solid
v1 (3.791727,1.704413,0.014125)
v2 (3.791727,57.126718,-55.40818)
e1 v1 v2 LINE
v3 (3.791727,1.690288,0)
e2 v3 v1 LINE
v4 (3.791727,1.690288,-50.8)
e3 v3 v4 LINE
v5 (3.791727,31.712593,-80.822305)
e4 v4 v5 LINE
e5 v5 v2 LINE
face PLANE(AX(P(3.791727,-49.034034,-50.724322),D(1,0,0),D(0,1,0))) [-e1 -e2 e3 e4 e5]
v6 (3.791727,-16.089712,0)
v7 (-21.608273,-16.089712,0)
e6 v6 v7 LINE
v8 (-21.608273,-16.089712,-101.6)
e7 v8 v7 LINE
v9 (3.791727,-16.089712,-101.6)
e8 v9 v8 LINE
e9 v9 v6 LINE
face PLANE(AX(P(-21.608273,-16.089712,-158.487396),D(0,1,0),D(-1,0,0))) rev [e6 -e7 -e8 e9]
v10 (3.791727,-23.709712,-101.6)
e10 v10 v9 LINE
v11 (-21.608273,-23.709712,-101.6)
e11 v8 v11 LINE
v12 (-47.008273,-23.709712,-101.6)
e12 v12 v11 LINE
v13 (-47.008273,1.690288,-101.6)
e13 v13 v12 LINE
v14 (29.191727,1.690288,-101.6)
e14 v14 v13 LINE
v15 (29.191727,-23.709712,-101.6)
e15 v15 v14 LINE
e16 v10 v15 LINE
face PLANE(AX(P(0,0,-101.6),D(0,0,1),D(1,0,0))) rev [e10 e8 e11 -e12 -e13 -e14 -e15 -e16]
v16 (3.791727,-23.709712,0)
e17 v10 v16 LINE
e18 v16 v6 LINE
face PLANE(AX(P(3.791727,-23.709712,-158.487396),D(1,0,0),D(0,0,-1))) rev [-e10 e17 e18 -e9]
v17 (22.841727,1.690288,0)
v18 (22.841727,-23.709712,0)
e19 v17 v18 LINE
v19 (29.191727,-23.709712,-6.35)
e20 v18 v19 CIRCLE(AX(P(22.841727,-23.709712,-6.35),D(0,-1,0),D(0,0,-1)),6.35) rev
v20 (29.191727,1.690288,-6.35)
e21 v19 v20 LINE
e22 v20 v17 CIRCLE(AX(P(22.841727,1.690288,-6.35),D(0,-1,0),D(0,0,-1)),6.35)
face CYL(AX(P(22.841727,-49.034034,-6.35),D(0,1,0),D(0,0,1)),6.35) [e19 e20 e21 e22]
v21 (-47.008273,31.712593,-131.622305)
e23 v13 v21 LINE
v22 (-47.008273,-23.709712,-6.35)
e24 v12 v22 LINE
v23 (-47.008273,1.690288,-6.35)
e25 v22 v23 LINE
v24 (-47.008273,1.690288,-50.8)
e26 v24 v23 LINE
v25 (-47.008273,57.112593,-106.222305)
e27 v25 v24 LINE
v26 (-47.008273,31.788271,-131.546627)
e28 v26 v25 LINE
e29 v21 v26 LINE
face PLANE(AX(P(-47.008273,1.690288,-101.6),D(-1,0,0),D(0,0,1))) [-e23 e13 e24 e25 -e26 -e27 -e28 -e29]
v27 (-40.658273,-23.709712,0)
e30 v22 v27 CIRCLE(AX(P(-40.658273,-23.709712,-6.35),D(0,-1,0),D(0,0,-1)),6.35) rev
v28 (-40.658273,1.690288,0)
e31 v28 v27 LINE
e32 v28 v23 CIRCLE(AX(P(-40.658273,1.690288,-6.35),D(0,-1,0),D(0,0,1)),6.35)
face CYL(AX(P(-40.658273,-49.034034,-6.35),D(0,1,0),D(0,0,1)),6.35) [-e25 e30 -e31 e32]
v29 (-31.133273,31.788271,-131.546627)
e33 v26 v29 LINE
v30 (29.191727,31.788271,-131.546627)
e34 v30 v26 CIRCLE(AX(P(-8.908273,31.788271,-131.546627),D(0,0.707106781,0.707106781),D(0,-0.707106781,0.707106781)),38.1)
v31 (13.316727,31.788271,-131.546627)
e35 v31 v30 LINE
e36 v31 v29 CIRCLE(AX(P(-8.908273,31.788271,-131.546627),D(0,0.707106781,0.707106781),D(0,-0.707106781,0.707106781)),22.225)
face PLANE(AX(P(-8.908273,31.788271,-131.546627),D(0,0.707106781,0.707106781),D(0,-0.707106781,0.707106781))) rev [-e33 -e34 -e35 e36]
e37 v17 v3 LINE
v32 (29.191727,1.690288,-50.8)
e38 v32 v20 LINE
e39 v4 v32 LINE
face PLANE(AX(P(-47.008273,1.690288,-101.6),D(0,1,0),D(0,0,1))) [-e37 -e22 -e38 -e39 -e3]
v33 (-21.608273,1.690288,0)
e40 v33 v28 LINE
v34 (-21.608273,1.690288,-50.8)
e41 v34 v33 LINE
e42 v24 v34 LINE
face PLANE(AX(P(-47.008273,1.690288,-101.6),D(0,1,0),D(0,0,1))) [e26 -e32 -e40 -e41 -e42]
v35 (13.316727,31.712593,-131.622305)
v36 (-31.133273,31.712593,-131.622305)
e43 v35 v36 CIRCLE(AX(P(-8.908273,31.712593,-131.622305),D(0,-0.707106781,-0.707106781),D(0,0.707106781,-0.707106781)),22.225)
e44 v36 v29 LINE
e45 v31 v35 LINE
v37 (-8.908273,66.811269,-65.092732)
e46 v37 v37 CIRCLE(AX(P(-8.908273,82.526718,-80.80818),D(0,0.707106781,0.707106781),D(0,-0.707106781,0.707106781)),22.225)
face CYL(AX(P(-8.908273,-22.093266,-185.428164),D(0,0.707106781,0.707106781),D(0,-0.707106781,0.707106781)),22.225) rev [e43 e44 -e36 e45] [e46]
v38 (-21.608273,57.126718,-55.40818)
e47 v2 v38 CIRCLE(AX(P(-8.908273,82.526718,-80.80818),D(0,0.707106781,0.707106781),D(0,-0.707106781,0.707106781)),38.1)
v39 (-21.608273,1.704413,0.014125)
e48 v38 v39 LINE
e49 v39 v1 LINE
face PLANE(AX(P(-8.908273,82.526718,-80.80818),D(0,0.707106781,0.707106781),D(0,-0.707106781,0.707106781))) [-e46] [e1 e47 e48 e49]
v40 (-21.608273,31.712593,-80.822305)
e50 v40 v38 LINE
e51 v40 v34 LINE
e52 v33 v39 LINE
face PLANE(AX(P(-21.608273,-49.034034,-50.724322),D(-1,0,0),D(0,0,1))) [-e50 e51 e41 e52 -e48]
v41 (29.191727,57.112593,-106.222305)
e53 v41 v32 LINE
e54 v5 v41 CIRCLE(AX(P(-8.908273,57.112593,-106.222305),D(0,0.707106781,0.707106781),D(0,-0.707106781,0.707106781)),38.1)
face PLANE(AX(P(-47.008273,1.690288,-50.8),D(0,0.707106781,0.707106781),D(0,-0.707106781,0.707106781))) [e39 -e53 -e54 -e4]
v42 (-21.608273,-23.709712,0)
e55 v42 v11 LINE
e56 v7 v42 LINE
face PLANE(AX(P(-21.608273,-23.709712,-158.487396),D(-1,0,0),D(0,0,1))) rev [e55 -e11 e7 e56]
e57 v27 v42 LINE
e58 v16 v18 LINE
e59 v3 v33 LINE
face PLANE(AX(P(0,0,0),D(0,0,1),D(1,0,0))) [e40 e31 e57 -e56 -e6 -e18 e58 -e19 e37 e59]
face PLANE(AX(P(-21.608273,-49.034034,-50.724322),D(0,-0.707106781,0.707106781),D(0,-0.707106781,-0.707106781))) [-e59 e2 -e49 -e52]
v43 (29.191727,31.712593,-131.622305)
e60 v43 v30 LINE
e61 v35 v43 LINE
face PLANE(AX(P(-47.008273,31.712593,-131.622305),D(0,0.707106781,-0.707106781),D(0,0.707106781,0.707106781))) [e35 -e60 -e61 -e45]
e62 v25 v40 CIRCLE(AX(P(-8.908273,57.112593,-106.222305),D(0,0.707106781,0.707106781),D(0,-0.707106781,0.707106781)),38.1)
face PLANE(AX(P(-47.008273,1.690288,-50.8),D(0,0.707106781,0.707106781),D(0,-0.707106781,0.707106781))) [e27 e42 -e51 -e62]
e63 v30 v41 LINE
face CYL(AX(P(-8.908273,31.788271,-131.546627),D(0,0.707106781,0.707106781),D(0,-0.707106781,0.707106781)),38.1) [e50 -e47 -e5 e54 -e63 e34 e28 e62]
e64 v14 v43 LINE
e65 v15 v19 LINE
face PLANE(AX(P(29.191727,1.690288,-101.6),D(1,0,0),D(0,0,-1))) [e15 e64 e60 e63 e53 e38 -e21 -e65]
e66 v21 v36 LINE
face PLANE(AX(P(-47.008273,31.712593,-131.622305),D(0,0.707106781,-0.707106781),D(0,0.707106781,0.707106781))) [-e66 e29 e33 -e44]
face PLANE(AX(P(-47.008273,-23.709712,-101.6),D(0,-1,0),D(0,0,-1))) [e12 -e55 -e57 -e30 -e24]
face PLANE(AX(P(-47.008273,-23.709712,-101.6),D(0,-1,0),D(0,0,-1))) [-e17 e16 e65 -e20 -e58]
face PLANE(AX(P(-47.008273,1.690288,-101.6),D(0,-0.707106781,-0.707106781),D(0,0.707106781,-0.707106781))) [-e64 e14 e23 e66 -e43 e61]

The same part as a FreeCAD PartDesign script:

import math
import FreeCAD as App
import Part
import Sketcher

V = App.Vector
Q = App.Units.Quantity


def add_polygon(sketch, points):
    """Adds a closed chain of lines whose ends are joined by coincident constraints."""
    first, n = sketch.GeometryCount, len(points)
    for a, b in zip(points, points[1:] + points[:1]):
        sketch.addGeometry(Part.LineSegment(App.Vector(*a, 0), App.Vector(*b, 0)), False)
    for i in range(n):
        sketch.addConstraint(Sketcher.Constraint("Coincident", first + i, 2, first + (i + 1) % n, 1))

doc = App.newDocument("Part")
body = doc.addObject("PartDesign::Body", "Body")

sketch1 = doc.addObject("Sketcher::SketchObject", "Sketch")
body.addObject(sketch1)
sketch1.AttachmentSupport = (doc.XY_Plane, [""])
sketch1.MapMode = "FlatFace"
add_polygon(sketch1, [(-47, 2), (-47, -24), (29, -24), (29, 2)])
sketch1.addConstraint(Sketcher.Constraint("Vertical", 0))
sketch1.addConstraint(Sketcher.Constraint("Horizontal", 1))
sketch1.addConstraint(Sketcher.Constraint("Vertical", 2))
sketch1.addConstraint(Sketcher.Constraint("Horizontal", 3))
sketch1.addConstraint(Sketcher.Constraint("DistanceX", 1, 1, 1, 2, Q("3 in")))
sketch1.addConstraint(Sketcher.Constraint("DistanceY", 0, 2, 0, 1, Q("1 in")))
sketch1.addConstraint(Sketcher.Constraint("DistanceX", 0, 2, -1, 1, Q("47.008273 mm")))
sketch1.addConstraint(Sketcher.Constraint("DistanceY", 0, 2, -1, 1, Q("23.709712 mm")))
pad1 = doc.addObject("PartDesign::Pad", "Pad")
body.addObject(pad1)
pad1.Profile = sketch1
pad1.Length = Q("4 in")
pad1.Reversed = True

sketch2 = doc.addObject("Sketcher::SketchObject", "Sketch001")
body.addObject(sketch2)
sketch2.AttachmentSupport = (doc.YZ_Plane, [""])
sketch2.MapMode = "FlatFace"
sketch2.AttachmentOffset = App.Placement(V(0, 0, 29.191727), App.Rotation())
add_polygon(sketch2, [(57, -106), (2, -51), (2, -102), (32, -132)])
sketch2.addConstraint(Sketcher.Constraint("Vertical", 1))
sketch2.addConstraint(Sketcher.Constraint("Parallel", 0, 2))
sketch2.addConstraint(Sketcher.Constraint("Perpendicular", 2, 3))
sketch2.addConstraint(Sketcher.Constraint("DistanceY", 1, 2, 1, 1, Q("2 in")))
sketch2.addConstraint(Sketcher.Constraint("DistanceY", 0, 2, -1, 1, Q("2 in")))
sketch2.addConstraint(Sketcher.Constraint("Angle", 0, Q("135 deg")))
sketch2.addConstraint(Sketcher.Constraint("Distance", 2, Q("42.457951 mm")))
sketch2.addConstraint(Sketcher.Constraint("DistanceX", -1, 1, 0, 2, Q("1.690288 mm")))
pad2 = doc.addObject("PartDesign::Pad", "Pad001")
body.addObject(pad2)
pad2.Profile = sketch2
pad2.Length = Q("3 in")
pad2.Reversed = True

sketch3 = doc.addObject("Sketcher::SketchObject", "Sketch002")
body.addObject(sketch3)
sketch3.Placement = App.Placement(V(0, -24.554856, -24.554856), App.Rotation(V(1, 0, 0), V(0, 0.707106781, -0.707106781), V(0, 0.707106781, 0.707106781), "ZXY"))
sketch3.addGeometry(Part.LineSegment(V(-22, 1, 0), V(4, 1, 0)), False)
sketch3.addGeometry(Part.LineSegment(V(4, 1, 0), V(4, 80, 0)), False)
sketch3.addGeometry(Part.ArcOfCircle(Part.Circle(V(-9, 115, 0), V(0, 0, 1), 38), math.radians(-71), math.radians(251)), False)
sketch3.addGeometry(Part.LineSegment(V(-22, 80, 0), V(-22, 1, 0)), False)
sketch3.addConstraint(Sketcher.Constraint("Coincident", 0, 2, 1, 1))
sketch3.addConstraint(Sketcher.Constraint("Coincident", 1, 2, 2, 1))
sketch3.addConstraint(Sketcher.Constraint("Coincident", 2, 2, 3, 1))
sketch3.addConstraint(Sketcher.Constraint("Coincident", 3, 2, 0, 1))
sketch3.addConstraint(Sketcher.Constraint("Horizontal", 0))
sketch3.addConstraint(Sketcher.Constraint("Vertical", 1))
sketch3.addConstraint(Sketcher.Constraint("Vertical", 3))
sketch3.addConstraint(Sketcher.Constraint("Horizontal", 1, 2, 2, 2))
sketch3.addConstraint(Sketcher.Constraint("Radius", 2, Q("1.5 in")))
sketch3.addConstraint(Sketcher.Constraint("DistanceX", 0, 1, 0, 2, Q("1 in")))
sketch3.addConstraint(Sketcher.Constraint("DistanceY", 0, 2, 2, 3, Q("4.5 in")))
sketch3.addConstraint(Sketcher.Constraint("DistanceY", -1, 1, 1, 2, Q("79.574189 mm")))
sketch3.addConstraint(Sketcher.Constraint("DistanceX", 2, 3, -1, 1, Q("8.908273 mm")))
pad3 = doc.addObject("PartDesign::Pad", "Pad002")
body.addObject(pad3)
pad3.Profile = sketch3
pad3.Type = "TwoLengths"
pad3.Length = Q("1.415 in")
pad3.Length2 = Q("1.41 in")

sketch4 = doc.addObject("Sketcher::SketchObject", "Sketch003")
body.addObject(sketch4)
sketch4.Placement = App.Placement(V(0, 0.859269, 0.859269), App.Rotation(V(1, 0, 0), V(0, 0.707106781, -0.707106781), V(0, 0.707106781, 0.707106781), "ZXY"))
sketch4.addGeometry(Part.Circle(V(-9, 115, 0), V(0, 0, 1), 22), False)
sketch4.addConstraint(Sketcher.Constraint("Diameter", 0, Q("1.75 in")))
sketch4.addConstraint(Sketcher.Constraint("DistanceX", 0, 3, -1, 1, Q("8.908273 mm")))
sketch4.addConstraint(Sketcher.Constraint("DistanceY", -1, 1, 0, 3, Q("115.495214 mm")))
pocket1 = doc.addObject("PartDesign::Pocket", "Pocket")
body.addObject(pocket1)
pocket1.Profile = sketch4
pocket1.Type = "ThroughAll"

sketch5 = doc.addObject("Sketcher::SketchObject", "Sketch004")
body.addObject(sketch5)
sketch5.AttachmentSupport = (doc.XZ_Plane, [""])
sketch5.MapMode = "FlatFace"
sketch5.AttachmentOffset = App.Placement(V(0, 0, -1.690288), App.Rotation())
sketch5.addGeometry(Part.LineSegment(V(-47, -6, 0), V(-47, 0, 0)), False)
sketch5.addGeometry(Part.LineSegment(V(-47, 0, 0), V(-41, 0, 0)), False)
sketch5.addGeometry(Part.ArcOfCircle(Part.Circle(V(-41, -6, 0), V(0, 0, 1), 6), math.radians(90), math.radians(180)), False)
sketch5.addGeometry(Part.LineSegment(V(23, 0, 0), V(29, 0, 0)), False)
sketch5.addGeometry(Part.LineSegment(V(29, 0, 0), V(29, -6, 0)), False)
sketch5.addGeometry(Part.ArcOfCircle(Part.Circle(V(23, -6, 0), V(0, 0, 1), 6), math.radians(0), math.radians(90)), False)
sketch5.addConstraint(Sketcher.Constraint("Coincident", 0, 2, 1, 1))
sketch5.addConstraint(Sketcher.Constraint("Tangent", 1, 2, 2, 1))
sketch5.addConstraint(Sketcher.Constraint("Tangent", 2, 2, 0, 1))
sketch5.addConstraint(Sketcher.Constraint("Coincident", 3, 2, 4, 1))
sketch5.addConstraint(Sketcher.Constraint("Tangent", 4, 2, 5, 1))
sketch5.addConstraint(Sketcher.Constraint("Tangent", 5, 2, 3, 1))
sketch5.addConstraint(Sketcher.Constraint("Vertical", 0))
sketch5.addConstraint(Sketcher.Constraint("Horizontal", 1))
sketch5.addConstraint(Sketcher.Constraint("Horizontal", 3))
sketch5.addConstraint(Sketcher.Constraint("Vertical", 4))
sketch5.addConstraint(Sketcher.Constraint("Equal", 2, 5))
sketch5.addConstraint(Sketcher.Constraint("PointOnObject", 0, 2, -1))
sketch5.addConstraint(Sketcher.Constraint("PointOnObject", 3, 2, -1))
sketch5.addConstraint(Sketcher.Constraint("Radius", 2, Q("0.25 in")))
sketch5.addConstraint(Sketcher.Constraint("DistanceX", 0, 2, 3, 2, Q("3 in")))
sketch5.addConstraint(Sketcher.Constraint("DistanceX", 2, 3, -1, 1, Q("40.658273 mm")))
pocket2 = doc.addObject("PartDesign::Pocket", "Pocket001")
body.addObject(pocket2)
pocket2.Profile = sketch5
pocket2.Type = "ThroughAll"
pocket2.Reversed = True

sketch6 = doc.addObject("Sketcher::SketchObject", "Sketch005")
body.addObject(sketch6)
sketch6.AttachmentSupport = (doc.XY_Plane, [""])
sketch6.MapMode = "FlatFace"
add_polygon(sketch6, [(-22, -16), (-22, -49), (4, -49), (4, -16)])
sketch6.addConstraint(Sketcher.Constraint("Vertical", 0))
sketch6.addConstraint(Sketcher.Constraint("Horizontal", 1))
sketch6.addConstraint(Sketcher.Constraint("Vertical", 2))
sketch6.addConstraint(Sketcher.Constraint("Horizontal", 3))
sketch6.addConstraint(Sketcher.Constraint("DistanceX", 1, 1, 1, 2, Q("1 in")))
sketch6.addConstraint(Sketcher.Constraint("DistanceY", 0, 2, 0, 1, Q("32.944322 mm")))
sketch6.addConstraint(Sketcher.Constraint("DistanceX", 0, 2, -1, 1, Q("21.608273 mm")))
sketch6.addConstraint(Sketcher.Constraint("DistanceY", 0, 2, -1, 1, Q("49.034034 mm")))
pocket3 = doc.addObject("PartDesign::Pocket", "Pocket002")
body.addObject(pocket3)
pocket3.Profile = sketch6
pocket3.Type = "ThroughAll"

doc.recompute()
